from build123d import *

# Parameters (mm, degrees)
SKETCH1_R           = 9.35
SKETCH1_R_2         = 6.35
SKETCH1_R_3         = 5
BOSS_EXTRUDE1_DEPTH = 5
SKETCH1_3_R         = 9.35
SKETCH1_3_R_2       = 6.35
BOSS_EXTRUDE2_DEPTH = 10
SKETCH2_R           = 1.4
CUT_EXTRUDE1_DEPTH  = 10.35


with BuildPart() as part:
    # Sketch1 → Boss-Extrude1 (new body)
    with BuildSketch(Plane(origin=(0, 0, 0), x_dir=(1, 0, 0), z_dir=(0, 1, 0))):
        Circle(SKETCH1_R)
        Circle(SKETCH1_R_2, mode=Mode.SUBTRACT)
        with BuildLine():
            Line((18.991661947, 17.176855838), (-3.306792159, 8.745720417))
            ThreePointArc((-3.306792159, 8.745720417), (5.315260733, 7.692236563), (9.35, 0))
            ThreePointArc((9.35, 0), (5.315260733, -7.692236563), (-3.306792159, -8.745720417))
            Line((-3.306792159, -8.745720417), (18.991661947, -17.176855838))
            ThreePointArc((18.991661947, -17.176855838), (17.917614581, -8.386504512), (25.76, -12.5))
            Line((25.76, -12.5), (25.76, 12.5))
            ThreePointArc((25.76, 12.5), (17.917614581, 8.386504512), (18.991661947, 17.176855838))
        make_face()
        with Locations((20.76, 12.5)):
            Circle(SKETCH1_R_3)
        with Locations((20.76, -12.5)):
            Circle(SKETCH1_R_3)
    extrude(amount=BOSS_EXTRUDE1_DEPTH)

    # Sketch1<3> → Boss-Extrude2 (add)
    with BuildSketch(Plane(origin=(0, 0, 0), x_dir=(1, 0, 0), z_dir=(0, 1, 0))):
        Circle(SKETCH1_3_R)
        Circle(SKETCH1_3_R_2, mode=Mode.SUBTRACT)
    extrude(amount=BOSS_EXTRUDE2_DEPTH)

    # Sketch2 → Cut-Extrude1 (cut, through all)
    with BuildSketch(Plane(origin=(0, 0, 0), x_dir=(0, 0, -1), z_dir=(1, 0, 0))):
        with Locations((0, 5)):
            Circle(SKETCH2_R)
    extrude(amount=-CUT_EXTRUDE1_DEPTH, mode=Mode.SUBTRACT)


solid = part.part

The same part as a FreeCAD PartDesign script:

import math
import FreeCAD as App
import Part
import Sketcher

V = App.Vector
Q = App.Units.Quantity

doc = App.newDocument("Part")
body = doc.addObject("PartDesign::Body", "Body")

# Sketch on XZ plane
sketch1 = body.newObject("Sketcher::SketchObject", "Sketch")
sketch1.AttachmentSupport = (doc.getObject("XZ_Plane"), [""])
sketch1.MapMode = "FlatFace"
sketch1.addGeometry([
    Part.ArcOfCircle(Part.Circle(V(0, 0, 0), V(0, 0, 1), 9.35), math.radians(110.711807), math.radians(249.288193)),  # 0
    Part.LineSegment(V(-3.306792, 8.74572, 0), V(18.991662, 17.176856, 0)),  # 1
    Part.ArcOfCircle(Part.Circle(V(20.76, 12.5, 0), V(0, 0, 1), 5), math.radians(0), math.radians(110.711807)),  # 2
    Part.LineSegment(V(25.76, 12.5, 0), V(25.76, -12.5, 0)),  # 3
    Part.ArcOfCircle(Part.Circle(V(20.76, -12.5, 0), V(0, 0, 1), 5), math.radians(-110.711807), math.radians(0)),  # 4
    Part.LineSegment(V(18.991662, -17.176856, 0), V(-3.306792, -8.74572, 0)),  # 5
    Part.Circle(V(0, 0, 0), V(0, 0, 1), 6.35),  # 6
], False)
sketch1.addConstraint([
    Sketcher.Constraint("Tangent", 0, 1, 1, 1),
    Sketcher.Constraint("Tangent", 1, 2, 2, 2),
    Sketcher.Constraint("Tangent", 2, 1, 3, 1),
    Sketcher.Constraint("Tangent", 3, 2, 4, 2),
    Sketcher.Constraint("Tangent", 4, 1, 5, 1),
    Sketcher.Constraint("Tangent", 5, 2, 0, 2),
    Sketcher.Constraint("Vertical", 3),
    Sketcher.Constraint("Coincident", 0, 3, -1, 1),
    Sketcher.Constraint("Coincident", 6, 3, -1, 1),
    Sketcher.Constraint("Equal", 2, 4),
    Sketcher.Constraint("Vertical", 1, 2, 4, 1),
    Sketcher.Constraint("Radius", 2, Q("5 mm")),
    Sketcher.Constraint("Diameter", 6, Q("12.7 mm")),
    Sketcher.Constraint("DistanceY", 3, 2, 3, 1, Q("25 mm")),
    Sketcher.Constraint("Radius", 0, Q("9.35 mm")),
    Sketcher.Constraint("DistanceX", -1, 1, 2, 3, Q("20.76 mm")),
])
pad1 = body.newObject("PartDesign::Pad", "Pad")
pad1.Profile = sketch1
pad1.Length = 5
pad1.Reversed = True

# Sketch on XZ plane
sketch2 = body.newObject("Sketcher::SketchObject", "Sketch001")
sketch2.AttachmentSupport = (doc.getObject("XZ_Plane"), [""])
sketch2.MapMode = "FlatFace"
sketch2.addGeometry([
    Part.Circle(V(0, 0, 0), V(0, 0, 1), 9.35),
    Part.Circle(V(0, 0, 0), V(0, 0, 1), 6.35),
], False)
sketch2.addConstraint([
    Sketcher.Constraint("Coincident", 0, 3, -1, 1),
    Sketcher.Constraint("Coincident", 1, 3, -1, 1),
    Sketcher.Constraint("Diameter", 0, Q("18.7 mm")),
    Sketcher.Constraint("Diameter", 1, Q("12.7 mm")),
])
pad2 = body.newObject("PartDesign::Pad", "Pad001")
pad2.Profile = sketch2
pad2.Length = 10
pad2.Reversed = True

# Sketch on YZ plane
sketch3 = body.newObject("Sketcher::SketchObject", "Sketch002")
sketch3.AttachmentSupport = (doc.getObject("YZ_Plane"), [""])
sketch3.MapMode = "FlatFace"
sketch3.addGeometry(Part.Circle(V(5, 0, 0), V(0, 0, 1), 1.4), False)
sketch3.addConstraint([
    Sketcher.Constraint("PointOnObject", 0, 3, -1),
    Sketcher.Constraint("Diameter", 0, Q("2.8 mm")),
    Sketcher.Constraint("DistanceX", -1, 1, 0, 3, Q("5 mm")),
])
pocket1 = body.newObject("PartDesign::Pocket", "Pocket")
pocket1.Profile = sketch3
pocket1.Type = "ThroughAll"

doc.recompute()
